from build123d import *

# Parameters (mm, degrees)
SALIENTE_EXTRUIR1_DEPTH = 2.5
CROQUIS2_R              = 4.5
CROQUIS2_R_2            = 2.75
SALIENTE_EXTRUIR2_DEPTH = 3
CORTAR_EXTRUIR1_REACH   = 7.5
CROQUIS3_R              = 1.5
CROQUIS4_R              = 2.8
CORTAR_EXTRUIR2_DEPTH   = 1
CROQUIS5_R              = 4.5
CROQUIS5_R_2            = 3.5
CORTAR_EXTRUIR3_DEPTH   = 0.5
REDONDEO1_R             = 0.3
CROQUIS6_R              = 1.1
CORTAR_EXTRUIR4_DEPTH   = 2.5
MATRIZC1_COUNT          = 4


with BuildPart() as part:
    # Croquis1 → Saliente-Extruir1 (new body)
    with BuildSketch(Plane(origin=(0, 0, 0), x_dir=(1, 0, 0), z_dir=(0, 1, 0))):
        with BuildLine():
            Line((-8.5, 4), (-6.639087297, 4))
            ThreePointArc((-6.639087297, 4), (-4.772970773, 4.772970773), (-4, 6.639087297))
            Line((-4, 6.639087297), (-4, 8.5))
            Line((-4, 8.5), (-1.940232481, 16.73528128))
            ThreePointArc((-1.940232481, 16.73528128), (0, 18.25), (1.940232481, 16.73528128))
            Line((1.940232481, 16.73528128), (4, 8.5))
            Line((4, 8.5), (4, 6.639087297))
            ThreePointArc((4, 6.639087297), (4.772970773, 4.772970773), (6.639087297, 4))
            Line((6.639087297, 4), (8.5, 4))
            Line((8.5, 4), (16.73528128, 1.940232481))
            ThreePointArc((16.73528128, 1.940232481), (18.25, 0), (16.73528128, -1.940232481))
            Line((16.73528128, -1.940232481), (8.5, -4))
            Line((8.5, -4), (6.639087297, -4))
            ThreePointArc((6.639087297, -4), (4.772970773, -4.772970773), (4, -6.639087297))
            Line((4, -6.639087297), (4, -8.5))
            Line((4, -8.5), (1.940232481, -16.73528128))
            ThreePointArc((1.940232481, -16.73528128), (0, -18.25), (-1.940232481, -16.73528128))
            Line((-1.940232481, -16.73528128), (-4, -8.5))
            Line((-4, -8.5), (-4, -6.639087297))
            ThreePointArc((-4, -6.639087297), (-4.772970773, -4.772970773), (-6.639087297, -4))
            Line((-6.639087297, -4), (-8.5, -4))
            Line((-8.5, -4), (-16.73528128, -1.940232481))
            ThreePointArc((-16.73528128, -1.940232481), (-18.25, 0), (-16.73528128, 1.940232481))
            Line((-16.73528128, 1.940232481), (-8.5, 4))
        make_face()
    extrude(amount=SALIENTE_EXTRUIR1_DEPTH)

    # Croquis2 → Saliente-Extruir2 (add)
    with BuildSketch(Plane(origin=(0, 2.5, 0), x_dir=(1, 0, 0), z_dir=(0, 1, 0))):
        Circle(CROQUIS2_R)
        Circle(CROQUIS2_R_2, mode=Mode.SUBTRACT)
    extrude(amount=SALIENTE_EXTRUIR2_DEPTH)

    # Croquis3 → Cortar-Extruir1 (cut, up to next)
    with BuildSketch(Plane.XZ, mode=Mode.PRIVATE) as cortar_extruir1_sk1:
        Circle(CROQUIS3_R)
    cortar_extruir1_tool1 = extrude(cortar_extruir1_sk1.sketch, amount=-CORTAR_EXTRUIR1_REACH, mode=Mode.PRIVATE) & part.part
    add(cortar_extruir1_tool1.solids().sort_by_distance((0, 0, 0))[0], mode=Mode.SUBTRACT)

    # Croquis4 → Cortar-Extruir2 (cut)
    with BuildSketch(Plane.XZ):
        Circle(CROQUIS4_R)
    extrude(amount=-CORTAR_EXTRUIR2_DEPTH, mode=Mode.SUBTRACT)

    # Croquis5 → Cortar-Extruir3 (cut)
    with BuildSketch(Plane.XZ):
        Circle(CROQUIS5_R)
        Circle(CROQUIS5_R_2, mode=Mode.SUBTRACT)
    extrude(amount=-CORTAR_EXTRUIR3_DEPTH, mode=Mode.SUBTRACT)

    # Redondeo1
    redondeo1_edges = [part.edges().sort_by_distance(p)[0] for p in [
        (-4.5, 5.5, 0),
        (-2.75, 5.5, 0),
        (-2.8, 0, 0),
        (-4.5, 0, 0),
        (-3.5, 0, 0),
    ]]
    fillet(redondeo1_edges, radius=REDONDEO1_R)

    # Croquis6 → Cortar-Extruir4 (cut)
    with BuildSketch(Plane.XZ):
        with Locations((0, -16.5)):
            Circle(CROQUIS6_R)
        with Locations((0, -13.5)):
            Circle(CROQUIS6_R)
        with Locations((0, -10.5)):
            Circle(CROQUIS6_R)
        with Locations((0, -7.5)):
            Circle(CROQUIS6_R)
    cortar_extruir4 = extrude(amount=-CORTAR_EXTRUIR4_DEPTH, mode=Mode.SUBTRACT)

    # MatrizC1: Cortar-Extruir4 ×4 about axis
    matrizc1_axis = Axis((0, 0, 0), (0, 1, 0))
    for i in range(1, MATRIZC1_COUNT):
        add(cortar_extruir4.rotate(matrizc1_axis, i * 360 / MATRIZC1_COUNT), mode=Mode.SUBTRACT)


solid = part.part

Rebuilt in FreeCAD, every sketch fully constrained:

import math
import FreeCAD as App
import Part
import Sketcher

V = App.Vector
Q = App.Units.Quantity


def edges_at(feature, points):
    """Names of the edges that pass closest to the given points."""
    edges = feature.Shape.Edges
    near = lambda p: min(range(len(edges)), key=lambda i: edges[i].distToShape(Part.Vertex(*p))[0])
    return sorted({f"Edge{near(p) + 1}" for p in points})

doc = App.newDocument("Part")
body = doc.addObject("PartDesign::Body", "Body")

# Sketch on XZ plane
sketch1 = doc.addObject("Sketcher::SketchObject", "Sketch")
body.addObject(sketch1)
sketch1.AttachmentSupport = (doc.XZ_Plane, [""])
sketch1.MapMode = "FlatFace"
sketch1.addGeometry(Part.LineSegment(V(-6.6, -4, 0), V(-8.5, -4, 0)), False)
sketch1.addGeometry(Part.LineSegment(V(-8.5, -4, 0), V(-16.7, -1.9, 0)), False)
sketch1.addGeometry(Part.ArcOfCircle(Part.Circle(V(-16.2, 0, 0), V(0, 0, 1), 2), math.radians(104), math.radians(256)), False)
sketch1.addGeometry(Part.LineSegment(V(-16.7, 1.9, 0), V(-8.5, 4, 0)), False)
sketch1.addGeometry(Part.LineSegment(V(-8.5, 4, 0), V(-6.6, 4, 0)), False)
sketch1.addGeometry(Part.ArcOfCircle(Part.Circle(V(-6.6, 6.6, 0), V(0, 0, 1), 2.6), math.radians(-90), math.radians(0)), False)
sketch1.addGeometry(Part.LineSegment(V(-4, 6.6, 0), V(-4, 8.5, 0)), False)
sketch1.addGeometry(Part.LineSegment(V(-4, 8.5, 0), V(-1.9, 16.7, 0)), False)
sketch1.addGeometry(Part.ArcOfCircle(Part.Circle(V(0, 16.2, 0), V(0, 0, 1), 2), math.radians(14), math.radians(166)), False)
sketch1.addGeometry(Part.LineSegment(V(1.9, 16.7, 0), V(4, 8.5, 0)), False)
sketch1.addGeometry(Part.LineSegment(V(4, 8.5, 0), V(4, 6.6, 0)), False)
sketch1.addGeometry(Part.ArcOfCircle(Part.Circle(V(6.6, 6.6, 0), V(0, 0, 1), 2.6), math.radians(180), math.radians(270)), False)
sketch1.addGeometry(Part.LineSegment(V(6.6, 4, 0), V(8.5, 4, 0)), False)
sketch1.addGeometry(Part.LineSegment(V(8.5, 4, 0), V(16.7, 1.9, 0)), False)
sketch1.addGeometry(Part.ArcOfCircle(Part.Circle(V(16.2, 0, 0), V(0, 0, 1), 2), math.radians(-76), math.radians(76)), False)
sketch1.addGeometry(Part.LineSegment(V(16.7, -1.9, 0), V(8.5, -4, 0)), False)
sketch1.addGeometry(Part.LineSegment(V(8.5, -4, 0), V(6.6, -4, 0)), False)
sketch1.addGeometry(Part.ArcOfCircle(Part.Circle(V(6.6, -6.6, 0), V(0, 0, 1), 2.6), math.radians(90), math.radians(180)), False)
sketch1.addGeometry(Part.LineSegment(V(4, -6.6, 0), V(4, -8.5, 0)), False)
sketch1.addGeometry(Part.LineSegment(V(4, -8.5, 0), V(1.9, -16.7, 0)), False)
sketch1.addGeometry(Part.ArcOfCircle(Part.Circle(V(0, -16.2, 0), V(0, 0, 1), 2), math.radians(-166), math.radians(-14)), False)
sketch1.addGeometry(Part.LineSegment(V(-1.9, -16.7, 0), V(-4, -8.5, 0)), False)
sketch1.addGeometry(Part.LineSegment(V(-4, -8.5, 0), V(-4, -6.6, 0)), False)
sketch1.addGeometry(Part.ArcOfCircle(Part.Circle(V(-6.6, -6.6, 0), V(0, 0, 1), 2.6), math.radians(0), math.radians(90)), False)
sketch1.addConstraint(Sketcher.Constraint("Coincident", 0, 2, 1, 1))
sketch1.addConstraint(Sketcher.Constraint("Tangent", 1, 2, 2, 2))
sketch1.addConstraint(Sketcher.Constraint("Tangent", 2, 1, 3, 1))
sketch1.addConstraint(Sketcher.Constraint("Coincident", 3, 2, 4, 1))
sketch1.addConstraint(Sketcher.Constraint("Tangent", 4, 2, 5, 1))
sketch1.addConstraint(Sketcher.Constraint("Tangent", 5, 2, 6, 1))
sketch1.addConstraint(Sketcher.Constraint("Coincident", 6, 2, 7, 1))
sketch1.addConstraint(Sketcher.Constraint("Tangent", 7, 2, 8, 2))
sketch1.addConstraint(Sketcher.Constraint("Tangent", 8, 1, 9, 1))
sketch1.addConstraint(Sketcher.Constraint("Coincident", 9, 2, 10, 1))
sketch1.addConstraint(Sketcher.Constraint("Tangent", 10, 2, 11, 1))
sketch1.addConstraint(Sketcher.Constraint("Tangent", 11, 2, 12, 1))
sketch1.addConstraint(Sketcher.Constraint("Coincident", 12, 2, 13, 1))
sketch1.addConstraint(Sketcher.Constraint("Tangent", 13, 2, 14, 2))
sketch1.addConstraint(Sketcher.Constraint("Tangent", 14, 1, 15, 1))
sketch1.addConstraint(Sketcher.Constraint("Coincident", 15, 2, 16, 1))
sketch1.addConstraint(Sketcher.Constraint("Tangent", 16, 2, 17, 1))
sketch1.addConstraint(Sketcher.Constraint("Tangent", 17, 2, 18, 1))
sketch1.addConstraint(Sketcher.Constraint("Coincident", 18, 2, 19, 1))
sketch1.addConstraint(Sketcher.Constraint("Tangent", 19, 2, 20, 2))
sketch1.addConstraint(Sketcher.Constraint("Tangent", 20, 1, 21, 1))
sketch1.addConstraint(Sketcher.Constraint("Coincident", 21, 2, 22, 1))
sketch1.addConstraint(Sketcher.Constraint("Tangent", 22, 2, 23, 1))
sketch1.addConstraint(Sketcher.Constraint("Tangent", 23, 2, 0, 1))
sketch1.addConstraint(Sketcher.Constraint("Horizontal", 0))
sketch1.addConstraint(Sketcher.Constraint("Horizontal", 4))
sketch1.addConstraint(Sketcher.Constraint("Vertical", 6))
sketch1.addConstraint(Sketcher.Constraint("Vertical", 10))
sketch1.addConstraint(Sketcher.Constraint("Horizontal", 12))
sketch1.addConstraint(Sketcher.Constraint("Horizontal", 16))
sketch1.addConstraint(Sketcher.Constraint("Vertical", 18))
sketch1.addConstraint(Sketcher.Constraint("Vertical", 22))
sketch1.addConstraint(Sketcher.Constraint("Equal", 2, 8))
sketch1.addConstraint(Sketcher.Constraint("Equal", 5, 11))
sketch1.addConstraint(Sketcher.Constraint("Equal", 8, 14))
sketch1.addConstraint(Sketcher.Constraint("Equal", 11, 17))
sketch1.addConstraint(Sketcher.Constraint("Equal", 14, 20))
sketch1.addConstraint(Sketcher.Constraint("Equal", 17, 23))
sketch1.addConstraint(Sketcher.Constraint("Symmetric", 2, 3, 14, 3, -1, 1))
sketch1.addConstraint(Sketcher.Constraint("Symmetric", 5, 3, 17, 3, -1, 1))
sketch1.addConstraint(Sketcher.Constraint("Symmetric", 8, 3, 20, 3, -1, 1))
sketch1.addConstraint(Sketcher.Constraint("Symmetric", 11, 3, 23, 3, -1, 1))
sketch1.addConstraint(Sketcher.Constraint("Symmetric", 5, 3, 11, 3, -2))
sketch1.addConstraint(Sketcher.Constraint("Symmetric", 7, 2, 8, 1, -2))
sketch1.addConstraint(Sketcher.Constraint("Symmetric", 2, 1, 13, 2, -2))
sketch1.addConstraint(Sketcher.Constraint("Perpendicular", 1, 7))
sketch1.addConstraint(Sketcher.Constraint("Perpendicular", 3, 9))
sketch1.addConstraint(Sketcher.Constraint("Perpendicular", 9, 15))
sketch1.addConstraint(Sketcher.Constraint("Perpendicular", 13, 19))
sketch1.addConstraint(Sketcher.Constraint("Perpendicular", 15, 21))
sketch1.addConstraint(Sketcher.Constraint("Equal", 16, 6))
sketch1.addConstraint(Sketcher.Constraint("Equal", 3, 7))
sketch1.addConstraint(Sketcher.Constraint("Radius", 2, Q("2 mm")))
sketch1.addConstraint(Sketcher.Constraint("DistanceY", 0, 2, -1, 1, Q("4 mm")))
sketch1.addConstraint(Sketcher.Constraint("DistanceX", 0, 2, -1, 1, Q("8.5 mm")))
sketch1.addConstraint(Sketcher.Constraint("DistanceX", 2, 3, 14, 3, Q("32.5 mm")))
sketch1.addConstraint(Sketcher.Constraint("Radius", 5, Q("2.639087 mm")))
pad1 = doc.addObject("PartDesign::Pad", "Pad")
body.addObject(pad1)
pad1.Profile = sketch1
pad1.Length = 2.5
pad1.Reversed = True

# Sketch on XZ plane
sketch2 = doc.addObject("Sketcher::SketchObject", "Sketch001")
body.addObject(sketch2)
sketch2.AttachmentSupport = (doc.XZ_Plane, [""])
sketch2.MapMode = "FlatFace"
sketch2.AttachmentOffset = App.Placement(V(0, 0, -2.5), App.Rotation())
sketch2.addGeometry(Part.Circle(V(0, 0, 0), V(0, 0, 1), 4.5), False)
sketch2.addGeometry(Part.Circle(V(0, 0, 0), V(0, 0, 1), 2.8), False)
sketch2.addConstraint(Sketcher.Constraint("Coincident", 0, 3, -1, 1))
sketch2.addConstraint(Sketcher.Constraint("Coincident", 1, 3, -1, 1))
sketch2.addConstraint(Sketcher.Constraint("Diameter", 0, Q("9 mm")))
sketch2.addConstraint(Sketcher.Constraint("Diameter", 1, Q("5.5 mm")))
pad2 = doc.addObject("PartDesign::Pad", "Pad001")
body.addObject(pad2)
pad2.Profile = sketch2
pad2.Length = 3
pad2.Reversed = True

# Sketch on XZ plane
sketch3 = doc.addObject("Sketcher::SketchObject", "Sketch002")
body.addObject(sketch3)
sketch3.AttachmentSupport = (doc.XZ_Plane, [""])
sketch3.MapMode = "FlatFace"
sketch3.addGeometry(Part.Circle(V(0, 0, 0), V(0, 0, 1), 1.5), False)
sketch3.addConstraint(Sketcher.Constraint("Coincident", 0, 3, -1, 1))
sketch3.addConstraint(Sketcher.Constraint("Diameter", 0, Q("3 mm")))
pocket1 = doc.addObject("PartDesign::Pocket", "Pocket")
body.addObject(pocket1)
pocket1.Profile = sketch3
pocket1.Type = "UpToFirst"

# Sketch on XZ plane
sketch4 = doc.addObject("Sketcher::SketchObject", "Sketch003")
body.addObject(sketch4)
sketch4.AttachmentSupport = (doc.XZ_Plane, [""])
sketch4.MapMode = "FlatFace"
sketch4.addGeometry(Part.Circle(V(0, 0, 0), V(0, 0, 1), 2.8), False)
sketch4.addConstraint(Sketcher.Constraint("Coincident", 0, 3, -1, 1))
sketch4.addConstraint(Sketcher.Constraint("Diameter", 0, Q("5.6 mm")))
pocket2 = doc.addObject("PartDesign::Pocket", "Pocket001")
body.addObject(pocket2)
pocket2.Profile = sketch4
pocket2.Length = 1

# Sketch on XZ plane
sketch5 = doc.addObject("Sketcher::SketchObject", "Sketch004")
body.addObject(sketch5)
sketch5.AttachmentSupport = (doc.XZ_Plane, [""])
sketch5.MapMode = "FlatFace"
sketch5.addGeometry(Part.Circle(V(0, 0, 0), V(0, 0, 1), 4.5), False)
sketch5.addGeometry(Part.Circle(V(0, 0, 0), V(0, 0, 1), 3.5), False)
sketch5.addConstraint(Sketcher.Constraint("Coincident", 0, 3, -1, 1))
sketch5.addConstraint(Sketcher.Constraint("Coincident", 1, 3, -1, 1))
sketch5.addConstraint(Sketcher.Constraint("Diameter", 0, Q("9 mm")))
sketch5.addConstraint(Sketcher.Constraint("Diameter", 1, Q("7 mm")))
pocket3 = doc.addObject("PartDesign::Pocket", "Pocket002")
body.addObject(pocket3)
pocket3.Profile = sketch5
pocket3.Length = 0.5
doc.recompute()

fillet = doc.addObject("PartDesign::Fillet", "Fillet")
body.addObject(fillet)
fillet.Base = (pocket3, edges_at(pocket3, [
    (-4.5, 5.5, 0),
    (-2.75, 5.5, 0),
    (-2.8, 0, 0),
    (-4.5, 0, 0),
    (-3.5, 0, 0),
]))
fillet.Radius = 0.3

# Sketch on XZ plane
sketch6 = doc.addObject("Sketcher::SketchObject", "Sketch005")
body.addObject(sketch6)
sketch6.AttachmentSupport = (doc.XZ_Plane, [""])
sketch6.MapMode = "FlatFace"
sketch6.addGeometry(Part.Circle(V(0, -16.5, 0), V(0, 0, 1), 1.1), False)
sketch6.addGeometry(Part.Circle(V(0, -13.5, 0), V(0, 0, 1), 1.1), False)
sketch6.addGeometry(Part.Circle(V(0, -10.5, 0), V(0, 0, 1), 1.1), False)
sketch6.addGeometry(Part.Circle(V(0, -7.5, 0), V(0, 0, 1), 1.1), False)
sketch6.addConstraint(Sketcher.Constraint("Equal", 0, 1))
sketch6.addConstraint(Sketcher.Constraint("Equal", 1, 2))
sketch6.addConstraint(Sketcher.Constraint("Equal", 2, 3))
sketch6.addConstraint(Sketcher.Constraint("PointOnObject", 0, 3, -2))
sketch6.addConstraint(Sketcher.Constraint("PointOnObject", 1, 3, -2))
sketch6.addConstraint(Sketcher.Constraint("PointOnObject", 2, 3, -2))
sketch6.addConstraint(Sketcher.Constraint("PointOnObject", 3, 3, -2))
sketch6.addConstraint(Sketcher.Constraint("Diameter", 0, Q("2.2 mm")))
sketch6.addConstraint(Sketcher.Constraint("DistanceY", 0, 3, 1, 3, Q("3 mm")))
sketch6.addConstraint(Sketcher.Constraint("DistanceY", 1, 3, 2, 3, Q("3 mm")))
sketch6.addConstraint(Sketcher.Constraint("DistanceY", 2, 3, 3, 3, Q("3 mm")))
sketch6.addConstraint(Sketcher.Constraint("DistanceY", 0, 3, -1, 1, Q("16.5 mm")))
pocket4 = doc.addObject("PartDesign::Pocket", "Pocket003")
body.addObject(pocket4)
pocket4.Profile = sketch6
pocket4.Length = 2.5
doc.recompute()

polarpattern = doc.addObject("PartDesign::PolarPattern", "PolarPattern")
body.addObject(polarpattern)
polarpattern.Originals = [pocket4]
polarpattern.Axis = (doc.Y_Axis, [""])
polarpattern.Angle = 360
polarpattern.Occurrences = 4
body.Tip = polarpattern

doc.recompute()
